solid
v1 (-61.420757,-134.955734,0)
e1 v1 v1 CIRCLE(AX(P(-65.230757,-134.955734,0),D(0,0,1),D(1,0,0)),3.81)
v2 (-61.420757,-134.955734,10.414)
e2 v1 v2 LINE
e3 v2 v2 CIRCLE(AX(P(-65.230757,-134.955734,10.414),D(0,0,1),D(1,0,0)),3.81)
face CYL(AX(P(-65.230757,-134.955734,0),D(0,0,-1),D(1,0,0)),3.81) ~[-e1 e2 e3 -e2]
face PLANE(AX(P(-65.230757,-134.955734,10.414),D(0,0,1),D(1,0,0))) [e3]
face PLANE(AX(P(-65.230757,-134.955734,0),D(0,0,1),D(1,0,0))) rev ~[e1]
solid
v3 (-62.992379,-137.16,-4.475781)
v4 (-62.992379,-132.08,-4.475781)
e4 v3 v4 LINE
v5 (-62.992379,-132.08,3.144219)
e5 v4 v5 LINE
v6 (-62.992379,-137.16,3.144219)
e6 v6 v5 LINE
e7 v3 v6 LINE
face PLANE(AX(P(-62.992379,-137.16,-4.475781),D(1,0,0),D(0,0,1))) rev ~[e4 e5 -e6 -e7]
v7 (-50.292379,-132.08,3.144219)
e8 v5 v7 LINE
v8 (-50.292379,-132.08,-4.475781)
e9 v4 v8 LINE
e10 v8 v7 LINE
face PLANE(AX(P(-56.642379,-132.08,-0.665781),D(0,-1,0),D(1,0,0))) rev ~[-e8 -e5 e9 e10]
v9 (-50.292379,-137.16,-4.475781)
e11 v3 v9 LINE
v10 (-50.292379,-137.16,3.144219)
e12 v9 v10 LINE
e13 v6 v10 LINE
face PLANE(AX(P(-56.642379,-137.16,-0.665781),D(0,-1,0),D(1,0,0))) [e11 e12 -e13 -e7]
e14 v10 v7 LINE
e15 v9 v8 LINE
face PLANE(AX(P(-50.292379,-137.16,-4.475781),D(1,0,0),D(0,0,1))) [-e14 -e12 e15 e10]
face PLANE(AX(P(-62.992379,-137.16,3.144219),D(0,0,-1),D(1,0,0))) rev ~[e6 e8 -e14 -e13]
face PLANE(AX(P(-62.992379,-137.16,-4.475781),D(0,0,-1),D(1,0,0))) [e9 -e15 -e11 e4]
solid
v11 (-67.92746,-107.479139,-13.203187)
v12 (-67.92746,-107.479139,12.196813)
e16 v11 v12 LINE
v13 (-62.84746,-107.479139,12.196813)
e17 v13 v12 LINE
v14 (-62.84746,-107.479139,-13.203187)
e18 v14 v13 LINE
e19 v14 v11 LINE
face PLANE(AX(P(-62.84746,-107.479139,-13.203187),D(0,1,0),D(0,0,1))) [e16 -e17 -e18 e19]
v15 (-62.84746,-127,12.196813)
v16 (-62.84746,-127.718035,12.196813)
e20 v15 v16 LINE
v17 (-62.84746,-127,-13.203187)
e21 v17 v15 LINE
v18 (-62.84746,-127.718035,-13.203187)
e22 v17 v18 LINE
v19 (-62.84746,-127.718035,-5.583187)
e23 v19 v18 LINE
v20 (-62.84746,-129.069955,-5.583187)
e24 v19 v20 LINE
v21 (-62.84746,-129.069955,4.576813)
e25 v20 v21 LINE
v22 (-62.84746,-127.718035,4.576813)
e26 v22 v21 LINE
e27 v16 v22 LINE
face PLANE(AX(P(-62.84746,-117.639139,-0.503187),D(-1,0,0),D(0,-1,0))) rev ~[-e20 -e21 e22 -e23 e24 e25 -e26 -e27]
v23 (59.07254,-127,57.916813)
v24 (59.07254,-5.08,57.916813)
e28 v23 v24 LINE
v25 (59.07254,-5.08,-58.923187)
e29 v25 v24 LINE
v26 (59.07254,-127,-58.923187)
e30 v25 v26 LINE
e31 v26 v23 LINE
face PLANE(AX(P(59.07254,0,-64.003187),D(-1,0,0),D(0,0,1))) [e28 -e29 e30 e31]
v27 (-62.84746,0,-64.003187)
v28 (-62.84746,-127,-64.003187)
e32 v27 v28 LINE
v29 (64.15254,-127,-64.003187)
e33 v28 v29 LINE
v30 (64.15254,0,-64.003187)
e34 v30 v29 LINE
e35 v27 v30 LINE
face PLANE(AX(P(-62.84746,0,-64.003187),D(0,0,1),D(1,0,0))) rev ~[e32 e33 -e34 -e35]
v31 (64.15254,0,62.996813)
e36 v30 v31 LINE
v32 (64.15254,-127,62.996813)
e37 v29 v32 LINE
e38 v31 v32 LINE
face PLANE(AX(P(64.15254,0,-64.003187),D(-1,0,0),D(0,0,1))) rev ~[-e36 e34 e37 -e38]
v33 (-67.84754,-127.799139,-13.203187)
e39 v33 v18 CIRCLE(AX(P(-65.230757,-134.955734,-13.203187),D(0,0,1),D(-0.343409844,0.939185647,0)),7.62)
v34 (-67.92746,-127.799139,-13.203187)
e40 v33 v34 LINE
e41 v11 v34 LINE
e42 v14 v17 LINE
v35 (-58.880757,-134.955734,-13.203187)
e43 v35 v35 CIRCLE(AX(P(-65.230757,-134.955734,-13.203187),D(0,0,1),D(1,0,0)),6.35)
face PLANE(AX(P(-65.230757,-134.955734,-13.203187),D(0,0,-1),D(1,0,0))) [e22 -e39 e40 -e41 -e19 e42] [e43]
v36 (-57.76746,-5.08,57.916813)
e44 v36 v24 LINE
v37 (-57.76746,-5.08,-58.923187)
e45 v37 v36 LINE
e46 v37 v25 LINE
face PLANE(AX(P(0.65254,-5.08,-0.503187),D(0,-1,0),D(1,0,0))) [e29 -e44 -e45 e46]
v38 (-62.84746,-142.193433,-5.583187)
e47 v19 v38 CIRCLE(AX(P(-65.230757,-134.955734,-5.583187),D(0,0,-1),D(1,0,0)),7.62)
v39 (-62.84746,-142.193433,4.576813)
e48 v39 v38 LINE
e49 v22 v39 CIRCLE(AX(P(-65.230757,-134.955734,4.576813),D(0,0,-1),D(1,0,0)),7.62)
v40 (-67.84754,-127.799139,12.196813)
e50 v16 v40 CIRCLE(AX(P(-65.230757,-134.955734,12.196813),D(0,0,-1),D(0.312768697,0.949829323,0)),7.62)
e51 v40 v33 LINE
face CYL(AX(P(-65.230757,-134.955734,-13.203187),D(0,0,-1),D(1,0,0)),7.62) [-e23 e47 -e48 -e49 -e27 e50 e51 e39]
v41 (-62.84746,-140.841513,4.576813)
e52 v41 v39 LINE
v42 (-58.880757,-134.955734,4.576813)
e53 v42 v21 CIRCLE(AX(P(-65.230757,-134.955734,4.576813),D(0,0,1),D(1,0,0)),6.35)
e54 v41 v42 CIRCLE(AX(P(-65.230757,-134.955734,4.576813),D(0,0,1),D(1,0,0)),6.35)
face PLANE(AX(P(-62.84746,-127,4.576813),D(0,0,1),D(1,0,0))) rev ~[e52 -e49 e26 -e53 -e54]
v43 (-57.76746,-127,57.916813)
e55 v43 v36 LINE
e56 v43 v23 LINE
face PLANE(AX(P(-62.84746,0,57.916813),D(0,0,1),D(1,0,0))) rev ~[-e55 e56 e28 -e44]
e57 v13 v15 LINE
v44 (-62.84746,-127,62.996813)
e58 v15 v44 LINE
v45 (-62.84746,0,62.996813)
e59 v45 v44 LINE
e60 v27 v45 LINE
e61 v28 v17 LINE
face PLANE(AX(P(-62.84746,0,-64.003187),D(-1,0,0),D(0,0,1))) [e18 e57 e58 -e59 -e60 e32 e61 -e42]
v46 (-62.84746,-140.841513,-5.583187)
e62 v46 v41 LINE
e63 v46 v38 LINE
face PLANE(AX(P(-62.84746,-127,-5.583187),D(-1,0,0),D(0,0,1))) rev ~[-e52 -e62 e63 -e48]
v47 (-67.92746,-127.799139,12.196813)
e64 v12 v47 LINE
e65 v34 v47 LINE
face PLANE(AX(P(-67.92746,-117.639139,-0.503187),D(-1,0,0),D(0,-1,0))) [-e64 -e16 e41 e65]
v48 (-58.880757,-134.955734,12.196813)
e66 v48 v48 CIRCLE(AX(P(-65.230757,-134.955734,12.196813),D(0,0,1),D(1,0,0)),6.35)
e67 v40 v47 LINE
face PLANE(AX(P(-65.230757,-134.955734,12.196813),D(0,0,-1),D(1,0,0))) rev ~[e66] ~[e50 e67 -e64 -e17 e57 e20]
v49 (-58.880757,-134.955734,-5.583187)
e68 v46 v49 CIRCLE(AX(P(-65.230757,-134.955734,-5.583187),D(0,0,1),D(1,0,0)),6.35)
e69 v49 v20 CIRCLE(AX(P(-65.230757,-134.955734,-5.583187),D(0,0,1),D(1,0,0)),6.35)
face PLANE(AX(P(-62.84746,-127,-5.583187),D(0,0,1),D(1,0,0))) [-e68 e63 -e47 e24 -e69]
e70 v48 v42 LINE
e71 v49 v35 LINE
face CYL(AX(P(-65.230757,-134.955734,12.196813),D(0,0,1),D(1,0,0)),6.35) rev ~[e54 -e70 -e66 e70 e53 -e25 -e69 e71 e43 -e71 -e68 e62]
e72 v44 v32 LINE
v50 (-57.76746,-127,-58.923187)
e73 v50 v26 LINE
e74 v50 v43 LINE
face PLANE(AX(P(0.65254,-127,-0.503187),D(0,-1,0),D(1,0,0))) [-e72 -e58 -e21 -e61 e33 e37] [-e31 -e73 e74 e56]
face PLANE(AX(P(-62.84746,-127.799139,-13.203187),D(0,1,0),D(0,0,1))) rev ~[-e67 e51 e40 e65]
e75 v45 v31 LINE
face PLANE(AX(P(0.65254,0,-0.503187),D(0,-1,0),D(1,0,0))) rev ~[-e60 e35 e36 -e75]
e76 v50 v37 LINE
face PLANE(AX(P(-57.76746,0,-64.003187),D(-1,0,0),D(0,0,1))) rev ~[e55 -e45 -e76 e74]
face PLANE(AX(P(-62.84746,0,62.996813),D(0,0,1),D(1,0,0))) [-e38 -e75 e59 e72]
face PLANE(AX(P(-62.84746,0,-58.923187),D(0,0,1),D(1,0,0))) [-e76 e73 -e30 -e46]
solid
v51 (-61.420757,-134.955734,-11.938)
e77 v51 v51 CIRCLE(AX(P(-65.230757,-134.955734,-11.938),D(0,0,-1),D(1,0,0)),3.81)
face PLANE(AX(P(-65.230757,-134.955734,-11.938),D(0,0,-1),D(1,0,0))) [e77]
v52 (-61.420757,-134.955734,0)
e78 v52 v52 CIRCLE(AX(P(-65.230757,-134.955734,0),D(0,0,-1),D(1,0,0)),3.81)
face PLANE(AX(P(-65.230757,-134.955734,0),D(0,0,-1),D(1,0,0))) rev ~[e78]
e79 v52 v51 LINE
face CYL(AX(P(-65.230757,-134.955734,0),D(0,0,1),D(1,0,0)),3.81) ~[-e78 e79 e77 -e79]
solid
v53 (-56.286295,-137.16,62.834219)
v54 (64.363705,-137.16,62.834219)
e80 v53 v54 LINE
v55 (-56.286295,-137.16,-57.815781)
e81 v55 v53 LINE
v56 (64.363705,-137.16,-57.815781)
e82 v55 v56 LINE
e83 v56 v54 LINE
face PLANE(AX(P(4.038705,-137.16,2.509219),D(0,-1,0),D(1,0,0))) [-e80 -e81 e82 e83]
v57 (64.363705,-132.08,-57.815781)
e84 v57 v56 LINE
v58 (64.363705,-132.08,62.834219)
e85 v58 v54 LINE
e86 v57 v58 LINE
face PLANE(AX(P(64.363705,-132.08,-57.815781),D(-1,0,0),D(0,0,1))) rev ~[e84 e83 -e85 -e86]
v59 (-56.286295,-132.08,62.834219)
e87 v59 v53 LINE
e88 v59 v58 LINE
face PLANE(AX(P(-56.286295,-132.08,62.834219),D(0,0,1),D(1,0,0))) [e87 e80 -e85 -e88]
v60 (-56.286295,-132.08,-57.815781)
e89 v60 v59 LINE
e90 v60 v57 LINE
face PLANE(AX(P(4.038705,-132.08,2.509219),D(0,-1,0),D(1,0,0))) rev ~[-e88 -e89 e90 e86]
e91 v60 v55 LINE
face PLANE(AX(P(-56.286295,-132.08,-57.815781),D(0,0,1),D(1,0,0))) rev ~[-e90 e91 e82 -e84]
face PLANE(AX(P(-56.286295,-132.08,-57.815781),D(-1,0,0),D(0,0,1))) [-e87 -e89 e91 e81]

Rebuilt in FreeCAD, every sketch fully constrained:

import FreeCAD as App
import Part
import Sketcher

V = App.Vector
Q = App.Units.Quantity


def faces_at(feature, points):
    """Names of the faces that lie closest to the given points."""
    faces = feature.Shape.Faces
    near = lambda p: min(range(len(faces)), key=lambda i: faces[i].distToShape(Part.Vertex(*p))[0])
    return sorted({f"Face{near(p) + 1}" for p in points})


def add_polygon(sketch, points):
    """Adds a closed chain of lines whose ends are joined by coincident constraints."""
    first, n = sketch.GeometryCount, len(points)
    for a, b in zip(points, points[1:] + points[:1]):
        sketch.addGeometry(Part.LineSegment(App.Vector(*a, 0), App.Vector(*b, 0)), False)
    for i in range(n):
        sketch.addConstraint(Sketcher.Constraint("Coincident", first + i, 2, first + (i + 1) % n, 1))

doc = App.newDocument("Part")
body = doc.addObject("PartDesign::Body", "Body")

# Sketch on XZ plane
sketch1 = body.newObject("Sketcher::SketchObject", "Sketch")
sketch1.AttachmentSupport = (doc.getObject("XZ_Plane"), [""])
sketch1.MapMode = "FlatFace"
add_polygon(sketch1, [(-63, 63), (-63, -64), (64, -64), (64, 63)])  # lines 0-3
sketch1.addConstraint([
    Sketcher.Constraint("Vertical", 0),
    Sketcher.Constraint("Horizontal", 1),
    Sketcher.Constraint("Vertical", 2),
    Sketcher.Constraint("Horizontal", 3),
    Sketcher.Constraint("Equal", 3, 0),
    Sketcher.Constraint("DistanceX", 1, 1, 1, 2, Q("5 in")),
    Sketcher.Constraint("DistanceX", 0, 2, -1, 1, 62.84746),
    Sketcher.Constraint("DistanceY", 0, 2, -1, 1, 64.003187),
])
pad1 = body.newObject("PartDesign::Pad", "Pad")
pad1.Profile = sketch1
pad1.Length = Q("5 in")
doc.recompute()

thickness = body.newObject("PartDesign::Thickness", "Thickness")
thickness.Base = (pad1, faces_at(pad1, [(0.653, -127, -0.503)]))
thickness.Value = Q("0.2 in")
thickness.Reversed = True
thickness.Join = "Arc"

# Sketch on YZ plane
sketch2 = body.newObject("Sketcher::SketchObject", "Sketch001")
sketch2.AttachmentSupport = (doc.getObject("YZ_Plane"), [""])
sketch2.MapMode = "FlatFace"
sketch2.AttachmentOffset = App.Placement(V(0, 0, -62.84746), App.Rotation())
add_polygon(sketch2, [(-107, 12), (-107, -13), (-128, -13), (-128, 12)])  # lines 0-3
sketch2.addConstraint([
    Sketcher.Constraint("Vertical", 0),
    Sketcher.Constraint("Horizontal", 1),
    Sketcher.Constraint("Vertical", 2),
    Sketcher.Constraint("Horizontal", 3),
    Sketcher.Constraint("DistanceY", 0, 2, 0, 1, Q("1 in")),
    Sketcher.Constraint("DistanceX", 1, 2, 1, 1, Q("0.8 in")),
    Sketcher.Constraint("DistanceX", 0, 2, -1, 1, 107.479139),
    Sketcher.Constraint("DistanceY", 0, 2, -1, 1, 13.203187),
])
pad2 = body.newObject("PartDesign::Pad", "Pad001")
pad2.Profile = sketch2
pad2.Length = Q("0.2 in")
pad2.Reversed = True

# Sketch on XY plane
sketch3 = body.newObject("Sketcher::SketchObject", "Sketch002")
sketch3.AttachmentSupport = (doc.getObject("XY_Plane"), [""])
sketch3.MapMode = "FlatFace"
sketch3.AttachmentOffset = App.Placement(V(0, 0, -13.203187), App.Rotation())
sketch3.addGeometry(Part.Circle(V(-65, -135, 0), V(0, 0, 1), 8), False)
sketch3.addConstraint([
    Sketcher.Constraint("Diameter", 0, Q("0.6 in")),
    Sketcher.Constraint("DistanceX", 0, 3, -1, 1, 65.230757),
    Sketcher.Constraint("DistanceY", 0, 3, -1, 1, 134.955734),
])
pad3 = body.newObject("PartDesign::Pad", "Pad002")
pad3.Profile = sketch3
pad3.Length = Q("1 in")

# Sketch on XY plane
sketch4 = body.newObject("Sketcher::SketchObject", "Sketch003")
sketch4.AttachmentSupport = (doc.getObject("XY_Plane"), [""])
sketch4.MapMode = "FlatFace"
sketch4.AttachmentOffset = App.Placement(V(0, 0, 12.196813), App.Rotation())
sketch4.addGeometry(Part.Circle(V(-65, -135, 0), V(0, 0, 1), 6), False)
sketch4.addConstraint([
    Sketcher.Constraint("Diameter", 0, Q("0.5 in")),
    Sketcher.Constraint("DistanceX", 0, 3, -1, 1, 65.230757),
    Sketcher.Constraint("DistanceY", 0, 3, -1, 1, 134.955734),
])
pocket1 = body.newObject("PartDesign::Pocket", "Pocket")
pocket1.Profile = sketch4
pocket1.Length = Q("2.56 in")

# Sketch on XZ plane
sketch5 = body.newObject("Sketcher::SketchObject", "Sketch004")
sketch5.AttachmentSupport = (doc.getObject("XZ_Plane"), [""])
sketch5.MapMode = "FlatFace"
sketch5.AttachmentOffset = App.Placement(V(0, 0, 5 * 25.4), App.Rotation())
add_polygon(sketch5, [(-63, 5), (-63, -6), (-55, -6), (-55, 5)])  # lines 0-3
sketch5.addConstraint([
    Sketcher.Constraint("Vertical", 0),
    Sketcher.Constraint("Horizontal", 1),
    Sketcher.Constraint("Vertical", 2),
    Sketcher.Constraint("Horizontal", 3),
    Sketcher.Constraint("DistanceX", 1, 1, 1, 2, Q("0.3 in")),
    Sketcher.Constraint("DistanceY", 0, 2, 0, 1, Q("0.4 in")),
    Sketcher.Constraint("DistanceX", 0, 2, -1, 1, 62.84746),
    Sketcher.Constraint("DistanceY", 0, 2, -1, 1, 5.583187),
])
pocket2 = body.newObject("PartDesign::Pocket", "Pocket001")
pocket2.Profile = sketch5
pocket2.Length = Q("1.19 in")
pocket2.Reversed = True
body2 = doc.addObject("PartDesign::Body", "Body001")

# Sketch on XY plane
sketch6 = body2.newObject("Sketcher::SketchObject", "Sketch005")
sketch6.AttachmentSupport = (doc.getObject("XY_Plane001"), [""])
sketch6.MapMode = "FlatFace"
sketch6.addGeometry(Part.Circle(V(-65.2, -135, 0), V(0, 0, 1), 3.8), False)
sketch6.addConstraint([
    Sketcher.Constraint("Diameter", 0, Q("0.3 in")),
    Sketcher.Constraint("DistanceX", 0, 3, -1, 1, 65.230757),
    Sketcher.Constraint("DistanceY", 0, 3, -1, 1, 134.955734),
])
pad4 = body2.newObject("PartDesign::Pad", "Pad003")
pad4.Profile = sketch6
pad4.Length = Q("0.41 in")
body3 = doc.addObject("PartDesign::Body", "Body002")

# Sketch on XZ plane
sketch7 = body3.newObject("Sketcher::SketchObject", "Sketch006")
sketch7.AttachmentSupport = (doc.getObject("XZ_Plane002"), [""])
sketch7.MapMode = "FlatFace"
sketch7.AttachmentOffset = App.Placement(V(0, 0, 5.2 * 25.4), App.Rotation())
add_polygon(sketch7, [(-56, 63), (-56, -58), (64, -58), (64, 63)])  # lines 0-3
sketch7.addConstraint([
    Sketcher.Constraint("Vertical", 0),
    Sketcher.Constraint("Horizontal", 1),
    Sketcher.Constraint("Vertical", 2),
    Sketcher.Constraint("Horizontal", 3),
    Sketcher.Constraint("Equal", 3, 0),
    Sketcher.Constraint("DistanceX", 1, 1, 1, 2, Q("4.75 in")),
    Sketcher.Constraint("DistanceY", 0, 2, -1, 1, 57.815781),
    Sketcher.Constraint("DistanceX", 0, 2, -1, 1, 56.286295),
])
pad5 = body3.newObject("PartDesign::Pad", "Pad004")
pad5.Profile = sketch7
pad5.Length = Q("0.2 in")
body4 = doc.addObject("PartDesign::Body", "Body003")

# Sketch on XZ plane
sketch8 = body4.newObject("Sketcher::SketchObject", "Sketch007")
sketch8.AttachmentSupport = (doc.getObject("XZ_Plane003"), [""])
sketch8.MapMode = "FlatFace"
sketch8.AttachmentOffset = App.Placement(V(0, 0, 5.4 * 25.4), App.Rotation())
add_polygon(sketch8, [(-63, 3), (-63, -4), (-50, -4), (-50, 3)])  # lines 0-3
sketch8.addConstraint([
    Sketcher.Constraint("Vertical", 0),
    Sketcher.Constraint("Horizontal", 1),
    Sketcher.Constraint("Vertical", 2),
    Sketcher.Constraint("Horizontal", 3),
    Sketcher.Constraint("DistanceX", 1, 1, 1, 2, Q("0.5 in")),
    Sketcher.Constraint("DistanceY", 0, 2, 0, 1, Q("0.3 in")),
    Sketcher.Constraint("DistanceX", 0, 2, -1, 1, 62.992379),
    Sketcher.Constraint("DistanceY", 0, 2, -1, 1, 4.475781),
])
pad6 = body4.newObject("PartDesign::Pad", "Pad005")
pad6.Profile = sketch8
pad6.Length = Q("0.2 in")
pad6.Reversed = True
body5 = doc.addObject("PartDesign::Body", "Body004")

# Sketch on XY plane
sketch9 = body5.newObject("Sketcher::SketchObject", "Sketch008")
sketch9.AttachmentSupport = (doc.getObject("XY_Plane004"), [""])
sketch9.MapMode = "FlatFace"
sketch9.addGeometry(Part.Circle(V(-65.2, -135, 0), V(0, 0, 1), 3.8), False)
sketch9.addConstraint([
    Sketcher.Constraint("Diameter", 0, Q("0.3 in")),
    Sketcher.Constraint("DistanceX", 0, 3, -1, 1, 65.230757),
    Sketcher.Constraint("DistanceY", 0, 3, -1, 1, 134.955734),
])
pad7 = body5.newObject("PartDesign::Pad", "Pad006")
pad7.Profile = sketch9
pad7.Length = Q("0.47 in")
pad7.Reversed = True

doc.recompute()
